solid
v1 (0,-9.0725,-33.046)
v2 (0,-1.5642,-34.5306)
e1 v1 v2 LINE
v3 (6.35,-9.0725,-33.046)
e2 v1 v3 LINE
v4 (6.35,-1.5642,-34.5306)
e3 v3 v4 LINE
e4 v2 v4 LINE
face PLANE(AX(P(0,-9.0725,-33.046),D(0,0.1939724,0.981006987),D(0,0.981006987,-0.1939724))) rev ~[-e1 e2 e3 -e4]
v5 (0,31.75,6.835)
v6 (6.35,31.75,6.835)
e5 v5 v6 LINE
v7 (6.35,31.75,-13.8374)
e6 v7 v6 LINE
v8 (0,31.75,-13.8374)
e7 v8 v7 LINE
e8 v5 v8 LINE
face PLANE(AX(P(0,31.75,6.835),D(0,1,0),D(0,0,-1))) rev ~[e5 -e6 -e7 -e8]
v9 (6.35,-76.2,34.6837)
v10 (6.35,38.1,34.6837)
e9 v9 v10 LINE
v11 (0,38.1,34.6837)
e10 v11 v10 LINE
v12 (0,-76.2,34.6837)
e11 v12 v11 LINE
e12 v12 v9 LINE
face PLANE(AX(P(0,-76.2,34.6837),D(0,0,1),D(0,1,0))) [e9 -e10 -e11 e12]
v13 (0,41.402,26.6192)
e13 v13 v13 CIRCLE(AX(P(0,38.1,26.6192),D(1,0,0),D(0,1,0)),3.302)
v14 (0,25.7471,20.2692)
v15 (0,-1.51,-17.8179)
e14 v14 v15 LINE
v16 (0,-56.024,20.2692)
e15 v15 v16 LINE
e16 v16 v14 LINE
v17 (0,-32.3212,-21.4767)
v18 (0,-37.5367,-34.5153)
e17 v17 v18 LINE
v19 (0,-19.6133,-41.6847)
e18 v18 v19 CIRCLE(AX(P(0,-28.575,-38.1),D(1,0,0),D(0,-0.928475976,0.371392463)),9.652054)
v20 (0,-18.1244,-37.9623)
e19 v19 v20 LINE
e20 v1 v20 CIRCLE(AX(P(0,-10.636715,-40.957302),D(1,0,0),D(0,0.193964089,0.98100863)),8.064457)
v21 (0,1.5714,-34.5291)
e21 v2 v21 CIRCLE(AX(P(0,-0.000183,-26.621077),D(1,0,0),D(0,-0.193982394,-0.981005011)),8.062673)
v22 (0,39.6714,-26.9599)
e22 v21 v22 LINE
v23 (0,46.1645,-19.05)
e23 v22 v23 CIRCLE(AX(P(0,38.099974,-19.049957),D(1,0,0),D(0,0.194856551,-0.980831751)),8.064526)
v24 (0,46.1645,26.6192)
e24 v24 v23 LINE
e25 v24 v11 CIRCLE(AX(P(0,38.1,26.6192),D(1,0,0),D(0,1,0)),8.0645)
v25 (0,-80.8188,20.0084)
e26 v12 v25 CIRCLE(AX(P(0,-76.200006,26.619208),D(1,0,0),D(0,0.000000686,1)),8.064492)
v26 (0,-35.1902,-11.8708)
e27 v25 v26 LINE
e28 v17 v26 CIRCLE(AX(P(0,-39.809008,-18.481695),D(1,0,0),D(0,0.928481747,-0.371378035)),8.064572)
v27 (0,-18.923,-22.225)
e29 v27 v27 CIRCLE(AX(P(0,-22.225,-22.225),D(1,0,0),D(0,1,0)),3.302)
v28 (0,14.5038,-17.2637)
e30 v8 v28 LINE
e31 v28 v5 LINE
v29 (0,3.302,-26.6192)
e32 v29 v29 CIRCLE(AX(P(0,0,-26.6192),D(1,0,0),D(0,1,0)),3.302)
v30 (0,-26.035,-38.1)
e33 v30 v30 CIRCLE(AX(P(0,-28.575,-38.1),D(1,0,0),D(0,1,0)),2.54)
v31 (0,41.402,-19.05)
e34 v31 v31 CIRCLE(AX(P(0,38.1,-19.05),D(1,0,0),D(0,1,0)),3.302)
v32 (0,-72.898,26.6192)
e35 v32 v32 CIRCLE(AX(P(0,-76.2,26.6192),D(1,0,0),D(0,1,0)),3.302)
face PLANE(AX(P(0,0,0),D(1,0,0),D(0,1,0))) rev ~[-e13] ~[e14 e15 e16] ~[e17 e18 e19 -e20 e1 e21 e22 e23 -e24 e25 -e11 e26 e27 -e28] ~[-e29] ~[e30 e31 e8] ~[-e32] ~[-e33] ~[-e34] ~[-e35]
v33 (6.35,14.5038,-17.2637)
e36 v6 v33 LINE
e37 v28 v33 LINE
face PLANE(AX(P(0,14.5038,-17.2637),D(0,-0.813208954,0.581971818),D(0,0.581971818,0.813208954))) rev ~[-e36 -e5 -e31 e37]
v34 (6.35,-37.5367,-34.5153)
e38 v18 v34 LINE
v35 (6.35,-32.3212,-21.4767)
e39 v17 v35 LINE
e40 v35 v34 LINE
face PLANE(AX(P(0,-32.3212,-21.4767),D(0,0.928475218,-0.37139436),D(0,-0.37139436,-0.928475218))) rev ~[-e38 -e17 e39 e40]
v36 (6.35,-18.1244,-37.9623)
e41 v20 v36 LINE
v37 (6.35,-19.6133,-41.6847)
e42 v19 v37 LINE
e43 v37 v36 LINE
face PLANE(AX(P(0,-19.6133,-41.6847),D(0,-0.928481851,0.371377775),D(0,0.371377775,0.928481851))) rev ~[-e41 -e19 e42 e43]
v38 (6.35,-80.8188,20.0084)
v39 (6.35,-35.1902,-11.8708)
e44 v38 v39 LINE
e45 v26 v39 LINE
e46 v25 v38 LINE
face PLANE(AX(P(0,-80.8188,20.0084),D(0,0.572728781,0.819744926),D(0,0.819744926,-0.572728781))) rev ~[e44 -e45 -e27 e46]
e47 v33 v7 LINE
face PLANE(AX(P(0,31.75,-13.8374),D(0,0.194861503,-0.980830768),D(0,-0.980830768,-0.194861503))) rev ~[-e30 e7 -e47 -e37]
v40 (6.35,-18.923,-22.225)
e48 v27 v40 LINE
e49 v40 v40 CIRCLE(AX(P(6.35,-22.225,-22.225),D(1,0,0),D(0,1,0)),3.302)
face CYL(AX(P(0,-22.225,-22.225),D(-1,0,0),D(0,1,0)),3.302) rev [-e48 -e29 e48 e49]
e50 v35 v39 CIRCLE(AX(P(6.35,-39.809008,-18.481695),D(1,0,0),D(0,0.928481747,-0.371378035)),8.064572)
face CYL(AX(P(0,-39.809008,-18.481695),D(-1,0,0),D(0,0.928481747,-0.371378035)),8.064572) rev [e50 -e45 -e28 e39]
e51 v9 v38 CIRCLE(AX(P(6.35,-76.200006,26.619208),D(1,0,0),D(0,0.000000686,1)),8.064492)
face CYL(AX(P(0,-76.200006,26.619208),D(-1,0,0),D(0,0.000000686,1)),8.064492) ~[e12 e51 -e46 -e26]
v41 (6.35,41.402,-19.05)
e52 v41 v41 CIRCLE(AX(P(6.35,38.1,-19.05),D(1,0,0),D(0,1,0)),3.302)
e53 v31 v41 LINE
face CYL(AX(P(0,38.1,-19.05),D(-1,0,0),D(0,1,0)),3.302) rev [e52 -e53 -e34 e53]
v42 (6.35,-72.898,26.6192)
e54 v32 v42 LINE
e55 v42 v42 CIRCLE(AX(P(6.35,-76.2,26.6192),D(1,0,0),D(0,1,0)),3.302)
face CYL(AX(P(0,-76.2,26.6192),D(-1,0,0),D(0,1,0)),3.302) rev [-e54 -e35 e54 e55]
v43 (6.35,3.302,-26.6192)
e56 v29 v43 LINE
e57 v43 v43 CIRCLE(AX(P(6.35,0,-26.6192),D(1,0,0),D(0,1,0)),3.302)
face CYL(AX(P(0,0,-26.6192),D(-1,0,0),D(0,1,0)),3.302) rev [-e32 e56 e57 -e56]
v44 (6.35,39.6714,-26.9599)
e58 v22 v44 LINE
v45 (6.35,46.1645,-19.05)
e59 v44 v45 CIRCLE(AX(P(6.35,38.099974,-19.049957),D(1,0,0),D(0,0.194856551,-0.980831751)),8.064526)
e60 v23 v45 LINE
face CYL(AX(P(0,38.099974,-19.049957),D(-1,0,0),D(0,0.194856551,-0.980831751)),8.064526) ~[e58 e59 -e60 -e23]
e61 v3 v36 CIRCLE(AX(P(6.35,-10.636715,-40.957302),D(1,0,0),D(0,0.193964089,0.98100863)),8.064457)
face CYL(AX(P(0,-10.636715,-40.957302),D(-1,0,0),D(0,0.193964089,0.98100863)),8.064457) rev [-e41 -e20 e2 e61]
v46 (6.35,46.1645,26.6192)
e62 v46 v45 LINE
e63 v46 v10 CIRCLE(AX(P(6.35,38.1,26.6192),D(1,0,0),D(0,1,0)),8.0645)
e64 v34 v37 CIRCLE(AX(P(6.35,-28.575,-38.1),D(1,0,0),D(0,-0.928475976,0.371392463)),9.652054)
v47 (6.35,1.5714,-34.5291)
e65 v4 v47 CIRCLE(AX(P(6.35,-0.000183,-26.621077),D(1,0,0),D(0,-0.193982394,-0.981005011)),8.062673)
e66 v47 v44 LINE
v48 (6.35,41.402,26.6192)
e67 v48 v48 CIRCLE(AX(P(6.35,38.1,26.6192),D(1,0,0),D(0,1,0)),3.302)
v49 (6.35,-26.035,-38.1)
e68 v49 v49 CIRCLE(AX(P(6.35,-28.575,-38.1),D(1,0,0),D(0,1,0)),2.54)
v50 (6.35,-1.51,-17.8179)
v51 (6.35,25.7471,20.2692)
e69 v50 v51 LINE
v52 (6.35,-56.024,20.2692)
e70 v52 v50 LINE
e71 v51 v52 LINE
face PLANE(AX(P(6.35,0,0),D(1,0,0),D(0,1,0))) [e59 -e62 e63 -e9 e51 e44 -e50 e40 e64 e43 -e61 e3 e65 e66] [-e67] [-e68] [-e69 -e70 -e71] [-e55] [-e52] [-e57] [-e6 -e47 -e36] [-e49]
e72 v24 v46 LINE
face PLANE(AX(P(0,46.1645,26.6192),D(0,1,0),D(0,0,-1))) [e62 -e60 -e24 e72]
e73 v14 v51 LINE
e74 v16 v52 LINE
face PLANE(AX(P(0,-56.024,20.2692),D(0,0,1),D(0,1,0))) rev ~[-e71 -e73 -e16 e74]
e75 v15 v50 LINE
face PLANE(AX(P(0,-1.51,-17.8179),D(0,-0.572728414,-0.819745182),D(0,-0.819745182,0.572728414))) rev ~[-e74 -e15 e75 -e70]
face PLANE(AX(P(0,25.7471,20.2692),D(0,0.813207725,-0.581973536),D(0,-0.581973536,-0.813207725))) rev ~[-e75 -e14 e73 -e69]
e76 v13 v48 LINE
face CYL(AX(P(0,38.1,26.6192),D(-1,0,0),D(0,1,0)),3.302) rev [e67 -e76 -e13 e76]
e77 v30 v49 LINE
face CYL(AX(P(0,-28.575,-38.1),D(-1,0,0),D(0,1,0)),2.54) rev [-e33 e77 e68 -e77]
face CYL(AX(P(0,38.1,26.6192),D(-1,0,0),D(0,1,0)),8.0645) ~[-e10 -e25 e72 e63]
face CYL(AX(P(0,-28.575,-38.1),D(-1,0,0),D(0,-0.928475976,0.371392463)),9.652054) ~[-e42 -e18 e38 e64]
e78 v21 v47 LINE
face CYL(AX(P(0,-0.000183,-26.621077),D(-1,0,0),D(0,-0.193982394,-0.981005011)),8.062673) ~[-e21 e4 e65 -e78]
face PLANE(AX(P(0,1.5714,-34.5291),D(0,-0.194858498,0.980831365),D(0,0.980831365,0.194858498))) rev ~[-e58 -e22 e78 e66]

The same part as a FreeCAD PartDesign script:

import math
import FreeCAD as App
import Part
import Sketcher

V = App.Vector
Q = App.Units.Quantity


def add_polygon(sketch, points):
    """Adds a closed chain of lines whose ends are joined by coincident constraints."""
    first, n = sketch.GeometryCount, len(points)
    for a, b in zip(points, points[1:] + points[:1]):
        sketch.addGeometry(Part.LineSegment(App.Vector(*a, 0), App.Vector(*b, 0)), False)
    for i in range(n):
        sketch.addConstraint(Sketcher.Constraint("Coincident", first + i, 2, first + (i + 1) % n, 1))

doc = App.newDocument("Part")
params = doc.addObject("Spreadsheet::Sheet", "Params")
for row, (alias, value) in enumerate([
    ("sketch1_diameter", "0.2 in"),
    ("sketch1_diameter2", "0.26 in"),
    ("sketch1_radius", "0.38 in"),
    ("sketch1_height", "1.798 in"),
    ("pad1_length", "0.25 in"),
], start=1):
    params.set(f"A{row}", alias)
    params.set(f"B{row}", "=" + value)
    params.setAlias(f"B{row}", alias)

body = doc.addObject("PartDesign::Body", "Body")

sketch1 = body.newObject("Sketcher::SketchObject", "Sketch")
sketch1.AttachmentSupport = (doc.getObject("YZ_Plane"), [""])
sketch1.MapMode = "FlatFace"
sketch1.addGeometry([
    Part.LineSegment(V(46.2, -19.1, 0), V(46.2, 26.6, 0)),
    Part.ArcOfCircle(Part.Circle(V(38.1, 26.6, 0), V(0, 0, 1), 8.1), math.radians(0), math.radians(90)),
    Part.LineSegment(V(38.1, 34.7, 0), V(-76.2, 34.7, 0)),
    Part.ArcOfCircle(Part.Circle(V(-76.2, 26.6, 0), V(0, 0, 1), 8.1), math.radians(90), math.radians(235)),
    Part.LineSegment(V(-80.8, 20, 0), V(-35.2, -11.9, 0)),
    Part.ArcOfCircle(Part.Circle(V(-39.8, -18.5, 0), V(0, 0, 1), 8.1), math.radians(-22), math.radians(55)),
    Part.LineSegment(V(-32.3, -21.5, 0), V(-37.5, -34.5, 0)),
    Part.ArcOfCircle(Part.Circle(V(-28.6, -38.1, 0), V(0, 0, 1), 9.7), math.radians(158), math.radians(338)),
    Part.LineSegment(V(-19.6, -41.7, 0), V(-18.1, -38, 0)),
    Part.ArcOfCircle(Part.Circle(V(-10.6, -41, 0), V(0, 0, 1), 8.1), math.radians(79), math.radians(158)),
    Part.LineSegment(V(-9.1, -33, 0), V(-1.6, -34.5, 0)),
    Part.ArcOfCircle(Part.Circle(V(0, -26.6, 0), V(0, 0, 1), 8.1), math.radians(-101), math.radians(-79)),
    Part.LineSegment(V(1.6, -34.5, 0), V(39.7, -27, 0)),
    Part.ArcOfCircle(Part.Circle(V(38.1, -19.1, 0), V(0, 0, 1), 8.1), math.radians(-79), math.radians(0)),
    Part.Circle(V(-28.6, -38.1, 0), V(0, 0, 1), 2.5),
    Part.Circle(V(-22.2, -22.2, 0), V(0, 0, 1), 3.3),
    Part.Circle(V(0, -26.6, 0), V(0, 0, 1), 3.3),
    Part.Circle(V(38.1, -19.1, 0), V(0, 0, 1), 3.3),
    Part.Circle(V(-76.2, 26.6, 0), V(0, 0, 1), 3.3),
    Part.Circle(V(38.1, 26.6, 0), V(0, 0, 1), 3.3),
], False)
sketch1.addConstraint([
    Sketcher.Constraint("Tangent", 0, 2, 1, 1),
    Sketcher.Constraint("Tangent", 1, 2, 2, 1),
    Sketcher.Constraint("Tangent", 2, 2, 3, 1),
    Sketcher.Constraint("Tangent", 3, 2, 4, 1),
    Sketcher.Constraint("Tangent", 4, 2, 5, 2),
    Sketcher.Constraint("Tangent", 5, 1, 6, 1),
    Sketcher.Constraint("Tangent", 6, 2, 7, 1),
    Sketcher.Constraint("Tangent", 7, 2, 8, 1),
    Sketcher.Constraint("Tangent", 8, 2, 9, 2),
    Sketcher.Constraint("Tangent", 9, 1, 10, 1),
    Sketcher.Constraint("Tangent", 10, 2, 11, 1),
    Sketcher.Constraint("Tangent", 11, 2, 12, 1),
    Sketcher.Constraint("Tangent", 12, 2, 13, 1),
    Sketcher.Constraint("Tangent", 13, 2, 0, 1),
    Sketcher.Constraint("Vertical", 0),
    Sketcher.Constraint("Horizontal", 2),
    Sketcher.Constraint("Coincident", 14, 3, 7, 3),
    Sketcher.Constraint("Coincident", 17, 3, 13, 3),
    Sketcher.Constraint("Coincident", 18, 3, 3, 3),
    Sketcher.Constraint("Coincident", 19, 3, 1, 3),
    Sketcher.Constraint("Equal", 1, 3),
    Sketcher.Constraint("Equal", 3, 5),
    Sketcher.Constraint("Equal", 5, 9),
    Sketcher.Constraint("Equal", 9, 13),
    Sketcher.Constraint("Equal", 15, 16),
    Sketcher.Constraint("Equal", 16, 17),
    Sketcher.Constraint("Equal", 17, 18),
    Sketcher.Constraint("Equal", 18, 19),
    Sketcher.Constraint("PointOnObject", 11, 3, -2),
    Sketcher.Constraint("PointOnObject", 16, 3, -2),
    Sketcher.Constraint("Parallel", 6, 8),
    Sketcher.Constraint("Diameter", 14, Q("0.2 in")),
    Sketcher.Constraint("Diameter", 15, Q("0.26 in")),
    Sketcher.Constraint("DistanceX", 3, 3, -1, 1, Q("3 in")),
    Sketcher.Constraint("DistanceX", -1, 1, 1, 3, Q("1.5 in")),
    Sketcher.Constraint("DistanceY", 7, 3, -1, 1, Q("1.5 in")),
    Sketcher.Constraint("DistanceX", 11, 2, 12, 2, Q("1.5 in")),
    Sketcher.Constraint("Radius", 7, Q("0.38 in")),
    Sketcher.Constraint("DistanceX", 7, 3, 15, 3, Q("0.25 in")),
    Sketcher.Constraint("DistanceX", 15, 3, -1, 1, Q("0.875 in")),
    Sketcher.Constraint("DistanceY", 15, 3, -1, 1, Q("0.875 in")),
    Sketcher.Constraint("Angle", 8, Q("68.1994 deg")),
    Sketcher.Constraint("Radius", 1, Q("0.3175 in")),
    Sketcher.Constraint("DistanceY", 0, 1, 0, 2, Q("1.798 in")),
    Sketcher.Constraint("DistanceY", 13, 3, -1, 1, Q("0.75 in")),
    Sketcher.Constraint("Angle", 4, Q("-34.9407 deg")),
    Sketcher.Constraint("DistanceY", 16, 3, -1, 1, Q("1.048 in")),
    Sketcher.Constraint("DistanceX", 7, 2, 9, 1, Q("0.415 in")),
    Sketcher.Constraint("DistanceY", 11, 2, 12, 2, Q("0.298 in")),
])
sketch1.setExpression("Constraints[31]", "Params.sketch1_diameter")
sketch1.setExpression("Constraints[32]", "Params.sketch1_diameter2")
sketch1.setExpression("Constraints[37]", "Params.sketch1_radius")
sketch1.setExpression("Constraints[43]", "Params.sketch1_height")
pad1 = body.newObject("PartDesign::Pad", "Pad")
pad1.Profile = sketch1
pad1.setExpression("Length", "Params.pad1_length")

sketch2 = body.newObject("Sketcher::SketchObject", "Sketch001")
sketch2.AttachmentSupport = (doc.getObject("YZ_Plane"), [""])
sketch2.MapMode = "FlatFace"
add_polygon(sketch2, [(32, 7), (32, -14), (15, -17)])
add_polygon(sketch2, [(-56, 20), (26, 20), (-2, -18)])
sketch2.addConstraint([
    Sketcher.Constraint("Vertical", 0),
    Sketcher.Constraint("Horizontal", 3),
    Sketcher.Constraint("Parallel", 2, 4),
    Sketcher.Constraint("DistanceX", -1, 1, 0, 2, Q("1.25 in")),
    Sketcher.Constraint("Angle", 2, Q("54.4107 deg")),
    Sketcher.Constraint("Angle", 5, Q("145.0593 deg")),
    Sketcher.Constraint("DistanceY", -1, 1, 3, 2, Q("0.798 in")),
    Sketcher.Constraint("Distance", 2, Q("1.1667 in")),
    Sketcher.Constraint("DistanceX", 3, 1, 3, 2, 81.771),
    Sketcher.Constraint("DistanceY", 0, 2, 0, 1, 20.6724),
    Sketcher.Constraint("DistanceY", -1, 1, 2, 2, Q("0.2691 in")),
    Sketcher.Constraint("DistanceX", -1, 1, 3, 2, 25.747),
])
pocket1 = body.newObject("PartDesign::Pocket", "Pocket")
pocket1.Profile = sketch2
pocket1.Type = "ThroughAll"
pocket1.Reversed = True

doc.recompute()
